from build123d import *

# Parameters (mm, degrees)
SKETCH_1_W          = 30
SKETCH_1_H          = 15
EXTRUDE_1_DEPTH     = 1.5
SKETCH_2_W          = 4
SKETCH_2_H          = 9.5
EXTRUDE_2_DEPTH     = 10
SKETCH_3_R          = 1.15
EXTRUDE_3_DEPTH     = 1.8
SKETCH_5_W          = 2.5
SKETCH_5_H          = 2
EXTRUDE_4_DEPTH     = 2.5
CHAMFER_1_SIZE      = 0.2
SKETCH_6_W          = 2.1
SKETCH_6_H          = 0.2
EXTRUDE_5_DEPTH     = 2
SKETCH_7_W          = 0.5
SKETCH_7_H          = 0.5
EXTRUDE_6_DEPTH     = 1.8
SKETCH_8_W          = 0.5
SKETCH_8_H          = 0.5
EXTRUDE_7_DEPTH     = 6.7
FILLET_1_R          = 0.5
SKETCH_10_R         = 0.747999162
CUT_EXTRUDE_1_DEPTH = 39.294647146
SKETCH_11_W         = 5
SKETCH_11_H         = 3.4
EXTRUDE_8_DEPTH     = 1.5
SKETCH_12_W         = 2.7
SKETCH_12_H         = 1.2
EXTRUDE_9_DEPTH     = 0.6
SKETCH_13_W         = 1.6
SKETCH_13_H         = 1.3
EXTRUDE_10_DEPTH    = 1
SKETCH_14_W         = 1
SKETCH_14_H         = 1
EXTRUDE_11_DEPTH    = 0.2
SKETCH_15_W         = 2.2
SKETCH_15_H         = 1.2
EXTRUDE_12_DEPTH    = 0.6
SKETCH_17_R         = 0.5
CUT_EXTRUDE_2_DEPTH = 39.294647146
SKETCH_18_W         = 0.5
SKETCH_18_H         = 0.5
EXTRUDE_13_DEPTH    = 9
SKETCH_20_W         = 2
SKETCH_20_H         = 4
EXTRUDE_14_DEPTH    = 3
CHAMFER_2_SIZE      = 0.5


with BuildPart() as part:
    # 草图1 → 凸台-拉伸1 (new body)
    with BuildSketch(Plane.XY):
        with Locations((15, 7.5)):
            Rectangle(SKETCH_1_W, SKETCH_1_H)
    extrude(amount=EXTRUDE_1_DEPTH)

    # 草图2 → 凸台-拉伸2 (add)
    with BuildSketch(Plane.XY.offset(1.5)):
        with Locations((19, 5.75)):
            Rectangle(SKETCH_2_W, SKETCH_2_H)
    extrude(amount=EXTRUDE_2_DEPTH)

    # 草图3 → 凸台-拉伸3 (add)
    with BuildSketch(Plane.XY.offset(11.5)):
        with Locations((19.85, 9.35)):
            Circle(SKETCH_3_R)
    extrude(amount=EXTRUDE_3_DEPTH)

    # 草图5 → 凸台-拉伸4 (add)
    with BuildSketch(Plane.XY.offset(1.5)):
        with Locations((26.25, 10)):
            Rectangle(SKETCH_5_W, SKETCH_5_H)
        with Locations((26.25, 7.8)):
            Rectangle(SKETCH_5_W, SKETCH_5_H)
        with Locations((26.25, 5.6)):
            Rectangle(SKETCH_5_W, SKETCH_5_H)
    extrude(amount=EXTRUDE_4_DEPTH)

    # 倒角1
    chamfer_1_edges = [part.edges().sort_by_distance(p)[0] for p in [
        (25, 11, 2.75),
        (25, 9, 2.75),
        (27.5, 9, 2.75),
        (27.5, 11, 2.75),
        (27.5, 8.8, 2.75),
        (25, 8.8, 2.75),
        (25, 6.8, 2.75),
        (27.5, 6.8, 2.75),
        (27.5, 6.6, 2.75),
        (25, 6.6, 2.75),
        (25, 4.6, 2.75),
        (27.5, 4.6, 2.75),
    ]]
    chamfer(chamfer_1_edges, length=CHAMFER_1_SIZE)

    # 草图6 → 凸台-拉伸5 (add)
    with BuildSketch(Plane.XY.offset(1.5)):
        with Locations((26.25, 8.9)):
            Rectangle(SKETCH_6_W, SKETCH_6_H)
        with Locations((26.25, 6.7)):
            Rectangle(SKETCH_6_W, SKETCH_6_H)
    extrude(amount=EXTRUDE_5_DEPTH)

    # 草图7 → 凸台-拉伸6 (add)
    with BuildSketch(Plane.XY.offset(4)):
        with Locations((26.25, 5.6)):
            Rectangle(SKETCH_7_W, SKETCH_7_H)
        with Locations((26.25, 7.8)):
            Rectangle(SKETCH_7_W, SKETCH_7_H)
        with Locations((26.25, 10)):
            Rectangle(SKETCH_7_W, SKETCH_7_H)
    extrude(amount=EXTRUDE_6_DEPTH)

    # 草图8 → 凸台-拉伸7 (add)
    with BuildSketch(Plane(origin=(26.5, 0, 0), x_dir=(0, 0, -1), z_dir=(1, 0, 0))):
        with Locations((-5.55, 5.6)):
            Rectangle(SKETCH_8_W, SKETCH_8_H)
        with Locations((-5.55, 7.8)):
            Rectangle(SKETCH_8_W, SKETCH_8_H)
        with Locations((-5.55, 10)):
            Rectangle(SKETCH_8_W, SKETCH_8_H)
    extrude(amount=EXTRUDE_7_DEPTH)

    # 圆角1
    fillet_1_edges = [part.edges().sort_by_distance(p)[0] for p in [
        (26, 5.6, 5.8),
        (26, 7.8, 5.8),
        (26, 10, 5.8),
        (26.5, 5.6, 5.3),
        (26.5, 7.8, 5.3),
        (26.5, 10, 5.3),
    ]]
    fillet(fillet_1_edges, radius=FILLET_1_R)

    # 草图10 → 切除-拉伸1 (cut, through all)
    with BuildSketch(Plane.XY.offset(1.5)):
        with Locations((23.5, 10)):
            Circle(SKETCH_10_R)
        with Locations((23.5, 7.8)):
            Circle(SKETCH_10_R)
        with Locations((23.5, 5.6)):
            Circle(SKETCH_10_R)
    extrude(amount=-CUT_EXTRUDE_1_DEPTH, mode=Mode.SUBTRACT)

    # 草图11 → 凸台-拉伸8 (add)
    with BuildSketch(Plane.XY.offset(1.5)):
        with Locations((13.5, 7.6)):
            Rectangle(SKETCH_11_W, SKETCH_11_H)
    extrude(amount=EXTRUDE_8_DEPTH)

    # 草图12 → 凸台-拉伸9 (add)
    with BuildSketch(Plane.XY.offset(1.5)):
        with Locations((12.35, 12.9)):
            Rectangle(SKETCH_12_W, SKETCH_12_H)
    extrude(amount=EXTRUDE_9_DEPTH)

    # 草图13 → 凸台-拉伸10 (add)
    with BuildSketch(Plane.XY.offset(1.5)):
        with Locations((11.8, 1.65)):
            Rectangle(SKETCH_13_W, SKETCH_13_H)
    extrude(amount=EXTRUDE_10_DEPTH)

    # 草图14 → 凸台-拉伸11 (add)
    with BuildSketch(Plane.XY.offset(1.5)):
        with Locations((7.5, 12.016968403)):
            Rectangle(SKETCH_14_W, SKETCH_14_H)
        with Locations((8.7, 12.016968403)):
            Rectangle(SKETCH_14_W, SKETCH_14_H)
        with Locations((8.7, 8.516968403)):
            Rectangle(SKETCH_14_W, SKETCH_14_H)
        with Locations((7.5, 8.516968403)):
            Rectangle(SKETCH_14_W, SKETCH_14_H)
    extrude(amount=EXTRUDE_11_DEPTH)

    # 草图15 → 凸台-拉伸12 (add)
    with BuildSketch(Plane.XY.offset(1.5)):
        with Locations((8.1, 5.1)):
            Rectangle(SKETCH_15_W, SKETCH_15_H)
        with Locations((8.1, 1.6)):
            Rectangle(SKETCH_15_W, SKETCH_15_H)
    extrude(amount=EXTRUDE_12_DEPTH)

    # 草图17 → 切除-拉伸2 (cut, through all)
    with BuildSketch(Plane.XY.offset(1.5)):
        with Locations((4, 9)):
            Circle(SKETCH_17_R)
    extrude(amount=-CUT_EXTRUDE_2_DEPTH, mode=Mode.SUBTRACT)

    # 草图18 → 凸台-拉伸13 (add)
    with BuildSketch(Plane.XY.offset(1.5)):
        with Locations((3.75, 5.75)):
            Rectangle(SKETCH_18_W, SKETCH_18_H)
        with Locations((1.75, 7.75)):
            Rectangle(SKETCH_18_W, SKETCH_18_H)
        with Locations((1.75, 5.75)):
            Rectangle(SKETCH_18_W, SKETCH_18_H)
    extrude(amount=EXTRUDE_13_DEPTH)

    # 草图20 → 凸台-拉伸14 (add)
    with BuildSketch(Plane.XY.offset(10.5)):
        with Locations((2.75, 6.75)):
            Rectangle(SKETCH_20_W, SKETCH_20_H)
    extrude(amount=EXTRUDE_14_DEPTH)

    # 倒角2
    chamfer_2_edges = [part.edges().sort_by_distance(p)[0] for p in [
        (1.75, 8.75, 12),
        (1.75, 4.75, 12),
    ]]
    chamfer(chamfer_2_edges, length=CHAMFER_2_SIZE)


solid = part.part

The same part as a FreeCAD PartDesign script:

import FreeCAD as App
import Part
import Sketcher

V = App.Vector
Q = App.Units.Quantity


def edges_at(feature, points):
    """Names of the edges that pass closest to the given points."""
    edges = feature.Shape.Edges
    near = lambda p: min(range(len(edges)), key=lambda i: edges[i].distToShape(Part.Vertex(*p))[0])
    return sorted({f"Edge{near(p) + 1}" for p in points})

doc = App.newDocument("Part")
body = doc.addObject("PartDesign::Body", "Body")

# Sketch on XY plane
sketch1 = body.newObject("Sketcher::SketchObject", "Sketch")
sketch1.AttachmentSupport = (doc.getObject("XY_Plane"), [""])
sketch1.MapMode = "FlatFace"
sketch1.addGeometry([
    Part.LineSegment(V(0, 15, 0), V(0, 0, 0)),
    Part.LineSegment(V(0, 0, 0), V(30, 0, 0)),
    Part.LineSegment(V(30, 0, 0), V(30, 15, 0)),
    Part.LineSegment(V(30, 15, 0), V(0, 15, 0)),
], False)
sketch1.addConstraint([
    Sketcher.Constraint("Coincident", 0, 2, 1, 1),
    Sketcher.Constraint("Coincident", 1, 2, 2, 1),
    Sketcher.Constraint("Coincident", 2, 2, 3, 1),
    Sketcher.Constraint("Coincident", 3, 2, 0, 1),
    Sketcher.Constraint("Vertical", 0),
    Sketcher.Constraint("Horizontal", 1),
    Sketcher.Constraint("Vertical", 2),
    Sketcher.Constraint("Horizontal", 3),
    Sketcher.Constraint("Coincident", 0, 2, -1, 1),
    Sketcher.Constraint("DistanceX", 1, 1, 1, 2, Q("30 mm")),
    Sketcher.Constraint("DistanceY", 0, 2, 0, 1, Q("15 mm")),
])
pad1 = body.newObject("PartDesign::Pad", "Pad")
pad1.Profile = sketch1
pad1.Length = 1.5

# Sketch on XY plane
sketch2 = body.newObject("Sketcher::SketchObject", "Sketch001")
sketch2.AttachmentSupport = (doc.getObject("XY_Plane"), [""])
sketch2.MapMode = "FlatFace"
sketch2.AttachmentOffset = App.Placement(V(0, 0, 1.5), App.Rotation())
sketch2.addGeometry([
    Part.LineSegment(V(17, 10.5, 0), V(17, 1, 0)),
    Part.LineSegment(V(17, 1, 0), V(21, 1, 0)),
    Part.LineSegment(V(21, 1, 0), V(21, 10.5, 0)),
    Part.LineSegment(V(21, 10.5, 0), V(17, 10.5, 0)),
], False)
sketch2.addConstraint([
    Sketcher.Constraint("Coincident", 0, 2, 1, 1),
    Sketcher.Constraint("Coincident", 1, 2, 2, 1),
    Sketcher.Constraint("Coincident", 2, 2, 3, 1),
    Sketcher.Constraint("Coincident", 3, 2, 0, 1),
    Sketcher.Constraint("Vertical", 0),
    Sketcher.Constraint("Horizontal", 1),
    Sketcher.Constraint("Vertical", 2),
    Sketcher.Constraint("Horizontal", 3),
    Sketcher.Constraint("DistanceX", 1, 1, 1, 2, Q("4 mm")),
    Sketcher.Constraint("DistanceY", 0, 2, 0, 1, Q("9.5 mm")),
    Sketcher.Constraint("DistanceX", -1, 1, 0, 2, Q("17 mm")),
    Sketcher.Constraint("DistanceY", -1, 1, 0, 2, Q("1 mm")),
])
pad2 = body.newObject("PartDesign::Pad", "Pad001")
pad2.Profile = sketch2
pad2.Length = 10

# Sketch on XY plane
sketch3 = body.newObject("Sketcher::SketchObject", "Sketch002")
sketch3.AttachmentSupport = (doc.getObject("XY_Plane"), [""])
sketch3.MapMode = "FlatFace"
sketch3.AttachmentOffset = App.Placement(V(0, 0, 11.5), App.Rotation())
sketch3.addGeometry(Part.Circle(V(19.9, 9.3, 0), V(0, 0, 1), 1.1), False)
sketch3.addConstraint([
    Sketcher.Constraint("Diameter", 0, Q("2.3 mm")),
    Sketcher.Constraint("DistanceX", -1, 1, 0, 3, Q("19.85 mm")),
    Sketcher.Constraint("DistanceY", -1, 1, 0, 3, Q("9.35 mm")),
])
pad3 = body.newObject("PartDesign::Pad", "Pad002")
pad3.Profile = sketch3
pad3.Length = 1.8

# Sketch on XY plane
sketch4 = body.newObject("Sketcher::SketchObject", "Sketch003")
sketch4.AttachmentSupport = (doc.getObject("XY_Plane"), [""])
sketch4.MapMode = "FlatFace"
sketch4.AttachmentOffset = App.Placement(V(0, 0, 1.5), App.Rotation())
sketch4.addGeometry([
    Part.LineSegment(V(25, 11, 0), V(25, 9, 0)),  # 0
    Part.LineSegment(V(25, 9, 0), V(27.5, 9, 0)),  # 1
    Part.LineSegment(V(27.5, 9, 0), V(27.5, 11, 0)),  # 2
    Part.LineSegment(V(27.5, 11, 0), V(25, 11, 0)),  # 3
    Part.LineSegment(V(25, 8.8, 0), V(25, 6.8, 0)),  # 4
    Part.LineSegment(V(25, 6.8, 0), V(27.5, 6.8, 0)),  # 5
    Part.LineSegment(V(27.5, 6.8, 0), V(27.5, 8.8, 0)),  # 6
    Part.LineSegment(V(27.5, 8.8, 0), V(25, 8.8, 0)),  # 7
    Part.LineSegment(V(25, 6.6, 0), V(25, 4.6, 0)),  # 8
    Part.LineSegment(V(25, 4.6, 0), V(27.5, 4.6, 0)),  # 9
    Part.LineSegment(V(27.5, 4.6, 0), V(27.5, 6.6, 0)),  # 10
    Part.LineSegment(V(27.5, 6.6, 0), V(25, 6.6, 0)),  # 11
], False)
sketch4.addConstraint([
    Sketcher.Constraint("Coincident", 0, 2, 1, 1),
    Sketcher.Constraint("Coincident", 1, 2, 2, 1),
    Sketcher.Constraint("Coincident", 2, 2, 3, 1),
    Sketcher.Constraint("Coincident", 3, 2, 0, 1),
    Sketcher.Constraint("Coincident", 4, 2, 5, 1),
    Sketcher.Constraint("Coincident", 5, 2, 6, 1),
    Sketcher.Constraint("Coincident", 6, 2, 7, 1),
    Sketcher.Constraint("Coincident", 7, 2, 4, 1),
    Sketcher.Constraint("Coincident", 8, 2, 9, 1),
    Sketcher.Constraint("Coincident", 9, 2, 10, 1),
    Sketcher.Constraint("Coincident", 10, 2, 11, 1),
    Sketcher.Constraint("Coincident", 11, 2, 8, 1),
    Sketcher.Constraint("Vertical", 0),
    Sketcher.Constraint("Horizontal", 1),
    Sketcher.Constraint("Vertical", 2),
    Sketcher.Constraint("Horizontal", 3),
    Sketcher.Constraint("Vertical", 4),
    Sketcher.Constraint("Horizontal", 5),
    Sketcher.Constraint("Vertical", 6),
    Sketcher.Constraint("Horizontal", 7),
    Sketcher.Constraint("Vertical", 8),
    Sketcher.Constraint("Horizontal", 9),
    Sketcher.Constraint("Vertical", 10),
    Sketcher.Constraint("Horizontal", 11),
    Sketcher.Constraint("Vertical", 3, 2, 4, 2),
    Sketcher.Constraint("Vertical", 2, 2, 5, 2),
    Sketcher.Constraint("Vertical", 7, 2, 8, 2),
    Sketcher.Constraint("Vertical", 6, 2, 9, 2),
    Sketcher.Constraint("Equal", 2, 4),
    Sketcher.Constraint("Equal", 6, 8),
    Sketcher.Constraint("DistanceY", 0, 2, 0, 1, Q("2 mm")),
    Sketcher.Constraint("DistanceX", 1, 1, 1, 2, Q("2.5 mm")),
    Sketcher.Constraint("DistanceX", -1, 1, 0, 2, Q("25 mm")),
    Sketcher.Constraint("DistanceY", -1, 1, 0, 2, Q("9 mm")),
    Sketcher.Constraint("DistanceY", -1, 1, 4, 2, Q("6.8 mm")),
    Sketcher.Constraint("DistanceY", -1, 1, 8, 2, Q("4.6 mm")),
])
pad4 = body.newObject("PartDesign::Pad", "Pad003")
pad4.Profile = sketch4
pad4.Length = 2.5
doc.recompute()

chamfer = body.newObject("PartDesign::Chamfer", "Chamfer")
chamfer.Base = (pad4, edges_at(pad4, [
    (25, 11, 2.75),
    (25, 9, 2.75),
    (27.5, 9, 2.75),
    (27.5, 11, 2.75),
    (27.5, 8.8, 2.75),
    (25, 8.8, 2.75),
    (25, 6.8, 2.75),
    (27.5, 6.8, 2.75),
    (27.5, 6.6, 2.75),
    (25, 6.6, 2.75),
    (25, 4.6, 2.75),
    (27.5, 4.6, 2.75),
]))
chamfer.Size = 0.2

# Sketch on XY plane
sketch5 = body.newObject("Sketcher::SketchObject", "Sketch004")
sketch5.AttachmentSupport = (doc.getObject("XY_Plane"), [""])
sketch5.MapMode = "FlatFace"
sketch5.AttachmentOffset = App.Placement(V(0, 0, 1.5), App.Rotation())
sketch5.addGeometry([
    Part.LineSegment(V(25.2, 9, 0), V(25.2, 8.8, 0)),  # 0
    Part.LineSegment(V(25.2, 8.8, 0), V(27.3, 8.8, 0)),  # 1
    Part.LineSegment(V(27.3, 8.8, 0), V(27.3, 9, 0)),  # 2
    Part.LineSegment(V(27.3, 9, 0), V(25.2, 9, 0)),  # 3
    Part.LineSegment(V(25.2, 6.8, 0), V(25.2, 6.6, 0)),  # 4
    Part.LineSegment(V(25.2, 6.6, 0), V(27.3, 6.6, 0)),  # 5
    Part.LineSegment(V(27.3, 6.6, 0), V(27.3, 6.8, 0)),  # 6
    Part.LineSegment(V(27.3, 6.8, 0), V(25.2, 6.8, 0)),  # 7
], False)
sketch5.addConstraint([
    Sketcher.Constraint("Coincident", 0, 2, 1, 1),
    Sketcher.Constraint("Coincident", 1, 2, 2, 1),
    Sketcher.Constraint("Coincident", 2, 2, 3, 1),
    Sketcher.Constraint("Coincident", 3, 2, 0, 1),
    Sketcher.Constraint("Coincident", 4, 2, 5, 1),
    Sketcher.Constraint("Coincident", 5, 2, 6, 1),
    Sketcher.Constraint("Coincident", 6, 2, 7, 1),
    Sketcher.Constraint("Coincident", 7, 2, 4, 1),
    Sketcher.Constraint("Vertical", 0),
    Sketcher.Constraint("Horizontal", 1),
    Sketcher.Constraint("Vertical", 2),
    Sketcher.Constraint("Horizontal", 3),
    Sketcher.Constraint("Vertical", 4),
    Sketcher.Constraint("Horizontal", 5),
    Sketcher.Constraint("Vertical", 6),
    Sketcher.Constraint("Horizontal", 7),
    Sketcher.Constraint("Vertical", 3, 2, 4, 2),
    Sketcher.Constraint("Vertical", 2, 2, 5, 2),
    Sketcher.Constraint("Equal", 2, 4),
    Sketcher.Constraint("DistanceX", 1, 1, 1, 2, Q("2.1 mm")),
    Sketcher.Constraint("DistanceY", 0, 2, 0, 1, Q("0.2 mm")),
    Sketcher.Constraint("DistanceY", -1, 1, 2, 2, Q("9 mm")),
    Sketcher.Constraint("DistanceY", 6, 2, 1, 2, Q("2 mm")),
    Sketcher.Constraint("DistanceX", -1, 1, 0, 2, Q("25.2 mm")),
])
pad5 = body.newObject("PartDesign::Pad", "Pad004")
pad5.Profile = sketch5
pad5.Length = 2

# Sketch on XY plane
sketch6 = body.newObject("Sketcher::SketchObject", "Sketch005")
sketch6.AttachmentSupport = (doc.getObject("XY_Plane"), [""])
sketch6.MapMode = "FlatFace"
sketch6.AttachmentOffset = App.Placement(V(0, 0, 4), App.Rotation())
sketch6.addGeometry([
    Part.LineSegment(V(26, 5.8, 0), V(26, 5.3, 0)),  # 0
    Part.LineSegment(V(26, 5.3, 0), V(26.5, 5.3, 0)),  # 1
    Part.LineSegment(V(26.5, 5.3, 0), V(26.5, 5.8, 0)),  # 2
    Part.LineSegment(V(26.5, 5.8, 0), V(26, 5.8, 0)),  # 3
    Part.LineSegment(V(26, 8.1, 0), V(26, 7.5, 0)),  # 4
    Part.LineSegment(V(26, 7.5, 0), V(26.5, 7.5, 0)),  # 5
    Part.LineSegment(V(26.5, 7.5, 0), V(26.5, 8.1, 0)),  # 6
    Part.LineSegment(V(26.5, 8.1, 0), V(26, 8.1, 0)),  # 7
    Part.LineSegment(V(26, 10.2, 0), V(26, 9.8, 0)),  # 8
    Part.LineSegment(V(26, 9.8, 0), V(26.5, 9.8, 0)),  # 9
    Part.LineSegment(V(26.5, 9.8, 0), V(26.5, 10.2, 0)),  # 10
    Part.LineSegment(V(26.5, 10.2, 0), V(26, 10.2, 0)),  # 11
], False)
sketch6.addConstraint([
    Sketcher.Constraint("Coincident", 0, 2, 1, 1),
    Sketcher.Constraint("Coincident", 1, 2, 2, 1),
    Sketcher.Constraint("Coincident", 2, 2, 3, 1),
    Sketcher.Constraint("Coincident", 3, 2, 0, 1),
    Sketcher.Constraint("Coincident", 4, 2, 5, 1),
    Sketcher.Constraint("Coincident", 5, 2, 6, 1),
    Sketcher.Constraint("Coincident", 6, 2, 7, 1),
    Sketcher.Constraint("Coincident", 7, 2, 4, 1),
    Sketcher.Constraint("Coincident", 8, 2, 9, 1),
    Sketcher.Constraint("Coincident", 9, 2, 10, 1),
    Sketcher.Constraint("Coincident", 10, 2, 11, 1),
    Sketcher.Constraint("Coincident", 11, 2, 8, 1),
    Sketcher.Constraint("Vertical", 0),
    Sketcher.Constraint("Horizontal", 1),
    Sketcher.Constraint("Vertical", 2),
    Sketcher.Constraint("Horizontal", 3),
    Sketcher.Constraint("Vertical", 4),
    Sketcher.Constraint("Horizontal", 5),
    Sketcher.Constraint("Vertical", 6),
    Sketcher.Constraint("Horizontal", 7),
    Sketcher.Constraint("Vertical", 8),
    Sketcher.Constraint("Horizontal", 9),
    Sketcher.Constraint("Vertical", 10),
    Sketcher.Constraint("Horizontal", 11),
    Sketcher.Constraint("Vertical", 3, 2, 4, 2),
    Sketcher.Constraint("Vertical", 2, 2, 5, 2),
    Sketcher.Constraint("Vertical", 7, 2, 8, 2),
    Sketcher.Constraint("Vertical", 6, 2, 9, 2),
    Sketcher.Constraint("Equal", 11, 0),
    Sketcher.Constraint("Equal", 2, 4),
    Sketcher.Constraint("Equal", 6, 8),
    Sketcher.Constraint("DistanceX", 1, 1, 1, 2, Q("0.5 mm")),
    Sketcher.Constraint("DistanceX", -1, 1, 0, 2, Q("26 mm")),
    Sketcher.Constraint("DistanceY", 3, 2, 4, 2, Q("1.7 mm")),
    Sketcher.Constraint("DistanceY", 7, 2, 8, 2, Q("1.7 mm")),
    Sketcher.Constraint("DistanceY", -1, 1, 0, 2, Q("5.35 mm")),
])
pad6 = body.newObject("PartDesign::Pad", "Pad005")
pad6.Profile = sketch6
pad6.Length = 1.8

# Sketch on YZ plane
sketch7 = body.newObject("Sketcher::SketchObject", "Sketch006")
sketch7.AttachmentSupport = (doc.getObject("YZ_Plane"), [""])
sketch7.MapMode = "FlatFace"
sketch7.AttachmentOffset = App.Placement(V(0, 0, 26.5), App.Rotation())
sketch7.addGeometry([
    Part.LineSegment(V(5.8, 5.8, 0), V(5.3, 5.8, 0)),  # 0
    Part.LineSegment(V(5.3, 5.8, 0), V(5.3, 5.3, 0)),  # 1
    Part.LineSegment(V(5.3, 5.3, 0), V(5.8, 5.3, 0)),  # 2
    Part.LineSegment(V(5.8, 5.3, 0), V(5.8, 5.8, 0)),  # 3
    Part.LineSegment(V(8.1, 5.8, 0), V(7.5, 5.8, 0)),  # 4
    Part.LineSegment(V(7.5, 5.8, 0), V(7.5, 5.3, 0)),  # 5
    Part.LineSegment(V(7.5, 5.3, 0), V(8.1, 5.3, 0)),  # 6
    Part.LineSegment(V(8.1, 5.3, 0), V(8.1, 5.8, 0)),  # 7
    Part.LineSegment(V(10.2, 5.8, 0), V(9.8, 5.8, 0)),  # 8
    Part.LineSegment(V(9.8, 5.8, 0), V(9.8, 5.3, 0)),  # 9
    Part.LineSegment(V(9.8, 5.3, 0), V(10.2, 5.3, 0)),  # 10
    Part.LineSegment(V(10.2, 5.3, 0), V(10.2, 5.8, 0)),  # 11
], False)
sketch7.addConstraint([
    Sketcher.Constraint("Coincident", 0, 2, 1, 1),
    Sketcher.Constraint("Coincident", 1, 2, 2, 1),
    Sketcher.Constraint("Coincident", 2, 2, 3, 1),
    Sketcher.Constraint("Coincident", 3, 2, 0, 1),
    Sketcher.Constraint("Coincident", 4, 2, 5, 1),
    Sketcher.Constraint("Coincident", 5, 2, 6, 1),
    Sketcher.Constraint("Coincident", 6, 2, 7, 1),
    Sketcher.Constraint("Coincident", 7, 2, 4, 1),
    Sketcher.Constraint("Coincident", 8, 2, 9, 1),
    Sketcher.Constraint("Coincident", 9, 2, 10, 1),
    Sketcher.Constraint("Coincident", 10, 2, 11, 1),
    Sketcher.Constraint("Coincident", 11, 2, 8, 1),
    Sketcher.Constraint("Horizontal", 0),
    Sketcher.Constraint("Vertical", 1),
    Sketcher.Constraint("Horizontal", 2),
    Sketcher.Constraint("Vertical", 3),
    Sketcher.Constraint("Horizontal", 4),
    Sketcher.Constraint("Vertical", 5),
    Sketcher.Constraint("Horizontal", 6),
    Sketcher.Constraint("Vertical", 7),
    Sketcher.Constraint("Horizontal", 8),
    Sketcher.Constraint("Vertical", 9),
    Sketcher.Constraint("Horizontal", 10),
    Sketcher.Constraint("Vertical", 11),
    Sketcher.Constraint("Horizontal", 3, 2, 4, 2),
    Sketcher.Constraint("Horizontal", 2, 2, 5, 2),
    Sketcher.Constraint("Horizontal", 7, 2, 8, 2),
    Sketcher.Constraint("Horizontal", 6, 2, 9, 2),
    Sketcher.Constraint("Equal", 2, 4),
    Sketcher.Constraint("Equal", 6, 8),
    Sketcher.Constraint("Equal", 10, 1),
    Sketcher.Constraint("DistanceX", 0, 2, 0, 1, Q("0.5 mm")),
    Sketcher.Constraint("DistanceY", -1, 1, 0, 2, Q("5.8 mm")),
    Sketcher.Constraint("DistanceX", 3, 2, 4, 2, Q("1.7 mm")),
    Sketcher.Constraint("DistanceX", 7, 2, 8, 2, Q("1.7 mm")),
    Sketcher.Constraint("DistanceX", -1, 1, 0, 2, Q("5.35 mm")),
])
pad7 = body.newObject("PartDesign::Pad", "Pad006")
pad7.Profile = sketch7
pad7.Length = 6.7
doc.recompute()

fillet = body.newObject("PartDesign::Fillet", "Fillet")
fillet.Base = (pad7, edges_at(pad7, [
    (26, 5.6, 5.8),
    (26, 7.8, 5.8),
    (26, 10, 5.8),
    (26.5, 5.6, 5.3),
    (26.5, 7.8, 5.3),
    (26.5, 10, 5.3),
]))
fillet.Radius = 0.5

# Sketch on XY plane
sketch8 = body.newObject("Sketcher::SketchObject", "Sketch007")
sketch8.AttachmentSupport = (doc.getObject("XY_Plane"), [""])
sketch8.MapMode = "FlatFace"
sketch8.AttachmentOffset = App.Placement(V(0, 0, 1.5), App.Rotation())
sketch8.addGeometry([
    Part.Circle(V(23.5, 10, 0), V(0, 0, 1), 0.7),
    Part.Circle(V(23.5, 7.8, 0), V(0, 0, 1), 0.7),
    Part.Circle(V(23.5, 5.6, 0), V(0, 0, 1), 0.7),
], False)
sketch8.addConstraint([
    Sketcher.Constraint("Equal", 0, 1),
    Sketcher.Constraint("Equal", 1, 2),
    Sketcher.Constraint("Vertical", 0, 3, 1, 3),
    Sketcher.Constraint("Vertical", 1, 3, 2, 3),
    Sketcher.Constraint("Diameter", 0, Q("1.495998 mm")),
    Sketcher.Constraint("DistanceY", -1, 1, 0, 3, Q("10 mm")),
    Sketcher.Constraint("DistanceX", -1, 1, 0, 3, Q("23.5 mm")),
    Sketcher.Constraint("DistanceY", -1, 1, 1, 3, Q("7.8 mm")),
    Sketcher.Constraint("DistanceY", -1, 1, 2, 3, Q("5.6 mm")),
])
pocket1 = body.newObject("PartDesign::Pocket", "Pocket")
pocket1.Profile = sketch8
pocket1.Type = "ThroughAll"

# Sketch on XY plane
sketch9 = body.newObject("Sketcher::SketchObject", "Sketch008")
sketch9.AttachmentSupport = (doc.getObject("XY_Plane"), [""])
sketch9.MapMode = "FlatFace"
sketch9.AttachmentOffset = App.Placement(V(0, 0, 1.5), App.Rotation())
sketch9.addGeometry([
    Part.LineSegment(V(11, 9.3, 0), V(11, 5.9, 0)),
    Part.LineSegment(V(11, 5.9, 0), V(16, 5.9, 0)),
    Part.LineSegment(V(16, 5.9, 0), V(16, 9.3, 0)),
    Part.LineSegment(V(16, 9.3, 0), V(11, 9.3, 0)),
], False)
sketch9.addConstraint([
    Sketcher.Constraint("Coincident", 0, 2, 1, 1),
    Sketcher.Constraint("Coincident", 1, 2, 2, 1),
    Sketcher.Constraint("Coincident", 2, 2, 3, 1),
    Sketcher.Constraint("Coincident", 3, 2, 0, 1),
    Sketcher.Constraint("Vertical", 0),
    Sketcher.Constraint("Horizontal", 1),
    Sketcher.Constraint("Vertical", 2),
    Sketcher.Constraint("Horizontal", 3),
    Sketcher.Constraint("DistanceX", 1, 1, 1, 2, Q("5 mm")),
    Sketcher.Constraint("DistanceY", 0, 2, 0, 1, Q("3.4 mm")),
    Sketcher.Constraint("DistanceX", -1, 1, 0, 2, Q("11 mm")),
    Sketcher.Constraint("DistanceY", -1, 1, 0, 2, Q("5.9 mm")),
])
pad8 = body.newObject("PartDesign::Pad", "Pad007")
pad8.Profile = sketch9
pad8.Length = 1.5

# Sketch on XY plane
sketch10 = body.newObject("Sketcher::SketchObject", "Sketch009")
sketch10.AttachmentSupport = (doc.getObject("XY_Plane"), [""])
sketch10.MapMode = "FlatFace"
sketch10.AttachmentOffset = App.Placement(V(0, 0, 1.5), App.Rotation())
sketch10.addGeometry([
    Part.LineSegment(V(11, 13.5, 0), V(11, 12.3, 0)),
    Part.LineSegment(V(11, 12.3, 0), V(13.7, 12.3, 0)),
    Part.LineSegment(V(13.7, 12.3, 0), V(13.7, 13.5, 0)),
    Part.LineSegment(V(13.7, 13.5, 0), V(11, 13.5, 0)),
], False)
sketch10.addConstraint([
    Sketcher.Constraint("Coincident", 0, 2, 1, 1),
    Sketcher.Constraint("Coincident", 1, 2, 2, 1),
    Sketcher.Constraint("Coincident", 2, 2, 3, 1),
    Sketcher.Constraint("Coincident", 3, 2, 0, 1),
    Sketcher.Constraint("Vertical", 0),
    Sketcher.Constraint("Horizontal", 1),
    Sketcher.Constraint("Vertical", 2),
    Sketcher.Constraint("Horizontal", 3),
    Sketcher.Constraint("DistanceX", 1, 1, 1, 2, Q("2.7 mm")),
    Sketcher.Constraint("DistanceY", 0, 2, 0, 1, Q("1.2 mm")),
    Sketcher.Constraint("DistanceX", -1, 1, 0, 2, Q("11 mm")),
    Sketcher.Constraint("DistanceY", -1, 1, 0, 2, Q("12.3 mm")),
])
pad9 = body.newObject("PartDesign::Pad", "Pad008")
pad9.Profile = sketch10
pad9.Length = 0.6

# Sketch on XY plane
sketch11 = body.newObject("Sketcher::SketchObject", "Sketch010")
sketch11.AttachmentSupport = (doc.getObject("XY_Plane"), [""])
sketch11.MapMode = "FlatFace"
sketch11.AttachmentOffset = App.Placement(V(0, 0, 1.5), App.Rotation())
sketch11.addGeometry([
    Part.LineSegment(V(11, 2.3, 0), V(11, 1, 0)),
    Part.LineSegment(V(11, 1, 0), V(12.6, 1, 0)),
    Part.LineSegment(V(12.6, 1, 0), V(12.6, 2.3, 0)),
    Part.LineSegment(V(12.6, 2.3, 0), V(11, 2.3, 0)),
], False)
sketch11.addConstraint([
    Sketcher.Constraint("Coincident", 0, 2, 1, 1),
    Sketcher.Constraint("Coincident", 1, 2, 2, 1),
    Sketcher.Constraint("Coincident", 2, 2, 3, 1),
    Sketcher.Constraint("Coincident", 3, 2, 0, 1),
    Sketcher.Constraint("Vertical", 0),
    Sketcher.Constraint("Horizontal", 1),
    Sketcher.Constraint("Vertical", 2),
    Sketcher.Constraint("Horizontal", 3),
    Sketcher.Constraint("DistanceX", 1, 1, 1, 2, Q("1.6 mm")),
    Sketcher.Constraint("DistanceY", 0, 2, 0, 1, Q("1.3 mm")),
    Sketcher.Constraint("DistanceX", -1, 1, 0, 2, Q("11 mm")),
    Sketcher.Constraint("DistanceY", -1, 1, 0, 2, Q("1 mm")),
])
pad10 = body.newObject("PartDesign::Pad", "Pad009")
pad10.Profile = sketch11
pad10.Length = 1

# Sketch on XY plane
sketch12 = body.newObject("Sketcher::SketchObject", "Sketch011")
sketch12.AttachmentSupport = (doc.getObject("XY_Plane"), [""])
sketch12.MapMode = "FlatFace"
sketch12.AttachmentOffset = App.Placement(V(0, 0, 1.5), App.Rotation())
sketch12.addGeometry([
    Part.LineSegment(V(7, 12.5, 0), V(7, 11.5, 0)),  # 0
    Part.LineSegment(V(7, 11.5, 0), V(8, 11.5, 0)),  # 1
    Part.LineSegment(V(8, 11.5, 0), V(8, 12.5, 0)),  # 2
    Part.LineSegment(V(8, 12.5, 0), V(7, 12.5, 0)),  # 3
    Part.LineSegment(V(8.2, 12.5, 0), V(8.2, 11.5, 0)),  # 4
    Part.LineSegment(V(8.2, 11.5, 0), V(9.2, 11.5, 0)),  # 5
    Part.LineSegment(V(9.2, 11.5, 0), V(9.2, 12.5, 0)),  # 6
    Part.LineSegment(V(9.2, 12.5, 0), V(8.2, 12.5, 0)),  # 7
    Part.LineSegment(V(8.2, 9, 0), V(8.2, 8, 0)),  # 8
    Part.LineSegment(V(8.2, 8, 0), V(9.2, 8, 0)),  # 9
    Part.LineSegment(V(9.2, 8, 0), V(9.2, 9, 0)),  # 10
    Part.LineSegment(V(9.2, 9, 0), V(8.2, 9, 0)),  # 11
    Part.LineSegment(V(7, 9, 0), V(7, 8, 0)),  # 12
    Part.LineSegment(V(7, 8, 0), V(8, 8, 0)),  # 13
    Part.LineSegment(V(8, 8, 0), V(8, 9, 0)),  # 14
    Part.LineSegment(V(8, 9, 0), V(7, 9, 0)),  # 15
], False)
sketch12.addConstraint([
    Sketcher.Constraint("Coincident", 0, 2, 1, 1),
    Sketcher.Constraint("Coincident", 1, 2, 2, 1),
    Sketcher.Constraint("Coincident", 2, 2, 3, 1),
    Sketcher.Constraint("Coincident", 3, 2, 0, 1),
    Sketcher.Constraint("Coincident", 4, 2, 5, 1),
    Sketcher.Constraint("Coincident", 5, 2, 6, 1),
    Sketcher.Constraint("Coincident", 6, 2, 7, 1),
    Sketcher.Constraint("Coincident", 7, 2, 4, 1),
    Sketcher.Constraint("Coincident", 8, 2, 9, 1),
    Sketcher.Constraint("Coincident", 9, 2, 10, 1),
    Sketcher.Constraint("Coincident", 10, 2, 11, 1),
    Sketcher.Constraint("Coincident", 11, 2, 8, 1),
    Sketcher.Constraint("Coincident", 12, 2, 13, 1),
    Sketcher.Constraint("Coincident", 13, 2, 14, 1),
    Sketcher.Constraint("Coincident", 14, 2, 15, 1),
    Sketcher.Constraint("Coincident", 15, 2, 12, 1),
    Sketcher.Constraint("Vertical", 0),
    Sketcher.Constraint("Horizontal", 1),
    Sketcher.Constraint("Vertical", 2),
    Sketcher.Constraint("Horizontal", 3),
    Sketcher.Constraint("Vertical", 4),
    Sketcher.Constraint("Horizontal", 5),
    Sketcher.Constraint("Vertical", 6),
    Sketcher.Constraint("Horizontal", 7),
    Sketcher.Constraint("Vertical", 8),
    Sketcher.Constraint("Horizontal", 9),
    Sketcher.Constraint("Vertical", 10),
    Sketcher.Constraint("Horizontal", 11),
    Sketcher.Constraint("Vertical", 12),
    Sketcher.Constraint("Horizontal", 13),
    Sketcher.Constraint("Vertical", 14),
    Sketcher.Constraint("Horizontal", 15),
    Sketcher.Constraint("Horizontal", 1, 2, 4, 2),
    Sketcher.Constraint("Horizontal", 3, 2, 6, 2),
    Sketcher.Constraint("Horizontal", 9, 2, 12, 2),
    Sketcher.Constraint("Horizontal", 11, 2, 14, 2),
    Sketcher.Constraint("Vertical", 7, 2, 8, 2),
    Sketcher.Constraint("Vertical", 6, 2, 9, 2),
    Sketcher.Constraint("Vertical", 3, 2, 12, 2),
    Sketcher.Constraint("Vertical", 2, 2, 13, 2),
    Sketcher.Constraint("Equal", 3, 5),
    Sketcher.Constraint("Equal", 15, 0),
    Sketcher.Constraint("Equal", 6, 8),
    Sketcher.Constraint("DistanceX", 1, 1, 1, 2, Q("1 mm")),
    Sketcher.Constraint("DistanceX", -1, 1, 0, 2, Q("7 mm")),
    Sketcher.Constraint("DistanceX", -1, 1, 4, 2, Q("8.2 mm")),
    Sketcher.Constraint("DistanceY", 8, 2, 4, 2, Q("3.5 mm")),
    Sketcher.Constraint("DistanceY", -1, 1, 0, 2, Q("11.516968 mm")),
])
pad11 = body.newObject("PartDesign::Pad", "Pad010")
pad11.Profile = sketch12
pad11.Length = 0.2

# Sketch on XY plane
sketch13 = body.newObject("Sketcher::SketchObject", "Sketch012")
sketch13.AttachmentSupport = (doc.getObject("XY_Plane"), [""])
sketch13.MapMode = "FlatFace"
sketch13.AttachmentOffset = App.Placement(V(0, 0, 1.5), App.Rotation())
sketch13.addGeometry([
    Part.LineSegment(V(7, 5.7, 0), V(7, 4.5, 0)),  # 0
    Part.LineSegment(V(7, 4.5, 0), V(9.2, 4.5, 0)),  # 1
    Part.LineSegment(V(9.2, 4.5, 0), V(9.2, 5.7, 0)),  # 2
    Part.LineSegment(V(9.2, 5.7, 0), V(7, 5.7, 0)),  # 3
    Part.LineSegment(V(7, 2.2, 0), V(7, 1, 0)),  # 4
    Part.LineSegment(V(7, 1, 0), V(9.2, 1, 0)),  # 5
    Part.LineSegment(V(9.2, 1, 0), V(9.2, 2.2, 0)),  # 6
    Part.LineSegment(V(9.2, 2.2, 0), V(7, 2.2, 0)),  # 7
], False)
sketch13.addConstraint([
    Sketcher.Constraint("Coincident", 0, 2, 1, 1),
    Sketcher.Constraint("Coincident", 1, 2, 2, 1),
    Sketcher.Constraint("Coincident", 2, 2, 3, 1),
    Sketcher.Constraint("Coincident", 3, 2, 0, 1),
    Sketcher.Constraint("Coincident", 4, 2, 5, 1),
    Sketcher.Constraint("Coincident", 5, 2, 6, 1),
    Sketcher.Constraint("Coincident", 6, 2, 7, 1),
    Sketcher.Constraint("Coincident", 7, 2, 4, 1),
    Sketcher.Constraint("Vertical", 0),
    Sketcher.Constraint("Horizontal", 1),
    Sketcher.Constraint("Vertical", 2),
    Sketcher.Constraint("Horizontal", 3),
    Sketcher.Constraint("Vertical", 4),
    Sketcher.Constraint("Horizontal", 5),
    Sketcher.Constraint("Vertical", 6),
    Sketcher.Constraint("Horizontal", 7),
    Sketcher.Constraint("Vertical", 3, 2, 4, 2),
    Sketcher.Constraint("Vertical", 2, 2, 5, 2),
    Sketcher.Constraint("Equal", 2, 4),
    Sketcher.Constraint("DistanceX", 1, 1, 1, 2, Q("2.2 mm")),
    Sketcher.Constraint("DistanceY", 0, 2, 0, 1, Q("1.2 mm")),
    Sketcher.Constraint("DistanceX", -1, 1, 0, 2, Q("7 mm")),
    Sketcher.Constraint("DistanceY", -1, 1, 4, 2, Q("1 mm")),
    Sketcher.Constraint("DistanceY", -1, 1, 0, 2, Q("4.5 mm")),
])
pad12 = body.newObject("PartDesign::Pad", "Pad011")
pad12.Profile = sketch13
pad12.Length = 0.6

# Sketch on XY plane
sketch14 = body.newObject("Sketcher::SketchObject", "Sketch013")
sketch14.AttachmentSupport = (doc.getObject("XY_Plane"), [""])
sketch14.MapMode = "FlatFace"
sketch14.AttachmentOffset = App.Placement(V(0, 0, 1.5), App.Rotation())
sketch14.addGeometry(Part.Circle(V(4, 9, 0), V(0, 0, 1), 0.5), False)
sketch14.addConstraint([
    Sketcher.Constraint("Diameter", 0, Q("1 mm")),
    Sketcher.Constraint("DistanceX", -1, 1, 0, 3, Q("4 mm")),
    Sketcher.Constraint("DistanceY", -1, 1, 0, 3, Q("9 mm")),
])
pocket2 = body.newObject("PartDesign::Pocket", "Pocket001")
pocket2.Profile = sketch14
pocket2.Type = "ThroughAll"

# Sketch on XY plane
sketch15 = body.newObject("Sketcher::SketchObject", "Sketch014")
sketch15.AttachmentSupport = (doc.getObject("XY_Plane"), [""])
sketch15.MapMode = "FlatFace"
sketch15.AttachmentOffset = App.Placement(V(0, 0, 1.5), App.Rotation())
sketch15.addGeometry([
    Part.LineSegment(V(3.5, 6, 0), V(3.5, 5.5, 0)),  # 0
    Part.LineSegment(V(3.5, 5.5, 0), V(4, 5.5, 0)),  # 1
    Part.LineSegment(V(4, 5.5, 0), V(4, 6, 0)),  # 2
    Part.LineSegment(V(4, 6, 0), V(3.5, 6, 0)),  # 3
    Part.LineSegment(V(1.5, 8, 0), V(1.5, 7.5, 0)),  # 4
    Part.LineSegment(V(1.5, 7.5, 0), V(2, 7.5, 0)),  # 5
    Part.LineSegment(V(2, 7.5, 0), V(2, 8, 0)),  # 6
    Part.LineSegment(V(2, 8, 0), V(1.5, 8, 0)),  # 7
    Part.LineSegment(V(1.5, 6, 0), V(1.5, 5.5, 0)),  # 8
    Part.LineSegment(V(1.5, 5.5, 0), V(2, 5.5, 0)),  # 9
    Part.LineSegment(V(2, 5.5, 0), V(2, 6, 0)),  # 10
    Part.LineSegment(V(2, 6, 0), V(1.5, 6, 0)),  # 11
], False)
sketch15.addConstraint([
    Sketcher.Constraint("Coincident", 0, 2, 1, 1),
    Sketcher.Constraint("Coincident", 1, 2, 2, 1),
    Sketcher.Constraint("Coincident", 2, 2, 3, 1),
    Sketcher.Constraint("Coincident", 3, 2, 0, 1),
    Sketcher.Constraint("Coincident", 4, 2, 5, 1),
    Sketcher.Constraint("Coincident", 5, 2, 6, 1),
    Sketcher.Constraint("Coincident", 6, 2, 7, 1),
    Sketcher.Constraint("Coincident", 7, 2, 4, 1),
    Sketcher.Constraint("Coincident", 8, 2, 9, 1),
    Sketcher.Constraint("Coincident", 9, 2, 10, 1),
    Sketcher.Constraint("Coincident", 10, 2, 11, 1),
    Sketcher.Constraint("Coincident", 11, 2, 8, 1),
    Sketcher.Constraint("Vertical", 0),
    Sketcher.Constraint("Horizontal", 1),
    Sketcher.Constraint("Vertical", 2),
    Sketcher.Constraint("Horizontal", 3),
    Sketcher.Constraint("Vertical", 4),
    Sketcher.Constraint("Horizontal", 5),
    Sketcher.Constraint("Vertical", 6),
    Sketcher.Constraint("Horizontal", 7),
    Sketcher.Constraint("Vertical", 8),
    Sketcher.Constraint("Horizontal", 9),
    Sketcher.Constraint("Vertical", 10),
    Sketcher.Constraint("Horizontal", 11),
    Sketcher.Constraint("Horizontal", 1, 2, 8, 2),
    Sketcher.Constraint("Horizontal", 3, 2, 10, 2),
    Sketcher.Constraint("Vertical", 7, 2, 8, 2),
    Sketcher.Constraint("Vertical", 6, 2, 9, 2),
    Sketcher.Constraint("Equal", 3, 5),
    Sketcher.Constraint("Equal", 11, 0),
    Sketcher.Constraint("Equal", 2, 4),
    Sketcher.Constraint("DistanceX", 1, 1, 1, 2, Q("0.5 mm")),
    Sketcher.Constraint("DistanceX", -1, 1, 1, 2, Q("4 mm")),
    Sketcher.Constraint("DistanceY", -1, 1, 2, 2, Q("6 mm")),
    Sketcher.Constraint("DistanceX", -1, 1, 5, 2, Q("2 mm")),
    Sketcher.Constraint("DistanceY", -1, 1, 6, 2, Q("8 mm")),
])
pad13 = body.newObject("PartDesign::Pad", "Pad012")
pad13.Profile = sketch15
pad13.Length = 9

# Sketch on XY plane
sketch16 = body.newObject("Sketcher::SketchObject", "Sketch015")
sketch16.AttachmentSupport = (doc.getObject("XY_Plane"), [""])
sketch16.MapMode = "FlatFace"
sketch16.AttachmentOffset = App.Placement(V(0, 0, 10.5), App.Rotation())
sketch16.addGeometry([
    Part.LineSegment(V(1.8, 8.8, 0), V(1.8, 4.8, 0)),
    Part.LineSegment(V(1.8, 4.8, 0), V(3.8, 4.8, 0)),
    Part.LineSegment(V(3.8, 4.8, 0), V(3.8, 8.8, 0)),
    Part.LineSegment(V(3.8, 8.8, 0), V(1.8, 8.8, 0)),
], False)
sketch16.addConstraint([
    Sketcher.Constraint("Coincident", 0, 2, 1, 1),
    Sketcher.Constraint("Coincident", 1, 2, 2, 1),
    Sketcher.Constraint("Coincident", 2, 2, 3, 1),
    Sketcher.Constraint("Coincident", 3, 2, 0, 1),
    Sketcher.Constraint("Vertical", 0),
    Sketcher.Constraint("Horizontal", 1),
    Sketcher.Constraint("Vertical", 2),
    Sketcher.Constraint("Horizontal", 3),
    Sketcher.Constraint("DistanceX", 1, 1, 1, 2, Q("2 mm")),
    Sketcher.Constraint("DistanceY", 0, 2, 0, 1, Q("4 mm")),
    Sketcher.Constraint("DistanceX", -1, 1, 0, 2, Q("1.75 mm")),
    Sketcher.Constraint("DistanceY", -1, 1, 0, 2, Q("4.75 mm")),
])
pad14 = body.newObject("PartDesign::Pad", "Pad013")
pad14.Profile = sketch16
pad14.Length = 3
doc.recompute()

chamfer2 = body.newObject("PartDesign::Chamfer", "Chamfer001")
chamfer2.Base = (pad14, edges_at(pad14, [(1.75, 8.75, 12), (1.75, 4.75, 12)]))
chamfer2.Size = 0.5

doc.recompute()
